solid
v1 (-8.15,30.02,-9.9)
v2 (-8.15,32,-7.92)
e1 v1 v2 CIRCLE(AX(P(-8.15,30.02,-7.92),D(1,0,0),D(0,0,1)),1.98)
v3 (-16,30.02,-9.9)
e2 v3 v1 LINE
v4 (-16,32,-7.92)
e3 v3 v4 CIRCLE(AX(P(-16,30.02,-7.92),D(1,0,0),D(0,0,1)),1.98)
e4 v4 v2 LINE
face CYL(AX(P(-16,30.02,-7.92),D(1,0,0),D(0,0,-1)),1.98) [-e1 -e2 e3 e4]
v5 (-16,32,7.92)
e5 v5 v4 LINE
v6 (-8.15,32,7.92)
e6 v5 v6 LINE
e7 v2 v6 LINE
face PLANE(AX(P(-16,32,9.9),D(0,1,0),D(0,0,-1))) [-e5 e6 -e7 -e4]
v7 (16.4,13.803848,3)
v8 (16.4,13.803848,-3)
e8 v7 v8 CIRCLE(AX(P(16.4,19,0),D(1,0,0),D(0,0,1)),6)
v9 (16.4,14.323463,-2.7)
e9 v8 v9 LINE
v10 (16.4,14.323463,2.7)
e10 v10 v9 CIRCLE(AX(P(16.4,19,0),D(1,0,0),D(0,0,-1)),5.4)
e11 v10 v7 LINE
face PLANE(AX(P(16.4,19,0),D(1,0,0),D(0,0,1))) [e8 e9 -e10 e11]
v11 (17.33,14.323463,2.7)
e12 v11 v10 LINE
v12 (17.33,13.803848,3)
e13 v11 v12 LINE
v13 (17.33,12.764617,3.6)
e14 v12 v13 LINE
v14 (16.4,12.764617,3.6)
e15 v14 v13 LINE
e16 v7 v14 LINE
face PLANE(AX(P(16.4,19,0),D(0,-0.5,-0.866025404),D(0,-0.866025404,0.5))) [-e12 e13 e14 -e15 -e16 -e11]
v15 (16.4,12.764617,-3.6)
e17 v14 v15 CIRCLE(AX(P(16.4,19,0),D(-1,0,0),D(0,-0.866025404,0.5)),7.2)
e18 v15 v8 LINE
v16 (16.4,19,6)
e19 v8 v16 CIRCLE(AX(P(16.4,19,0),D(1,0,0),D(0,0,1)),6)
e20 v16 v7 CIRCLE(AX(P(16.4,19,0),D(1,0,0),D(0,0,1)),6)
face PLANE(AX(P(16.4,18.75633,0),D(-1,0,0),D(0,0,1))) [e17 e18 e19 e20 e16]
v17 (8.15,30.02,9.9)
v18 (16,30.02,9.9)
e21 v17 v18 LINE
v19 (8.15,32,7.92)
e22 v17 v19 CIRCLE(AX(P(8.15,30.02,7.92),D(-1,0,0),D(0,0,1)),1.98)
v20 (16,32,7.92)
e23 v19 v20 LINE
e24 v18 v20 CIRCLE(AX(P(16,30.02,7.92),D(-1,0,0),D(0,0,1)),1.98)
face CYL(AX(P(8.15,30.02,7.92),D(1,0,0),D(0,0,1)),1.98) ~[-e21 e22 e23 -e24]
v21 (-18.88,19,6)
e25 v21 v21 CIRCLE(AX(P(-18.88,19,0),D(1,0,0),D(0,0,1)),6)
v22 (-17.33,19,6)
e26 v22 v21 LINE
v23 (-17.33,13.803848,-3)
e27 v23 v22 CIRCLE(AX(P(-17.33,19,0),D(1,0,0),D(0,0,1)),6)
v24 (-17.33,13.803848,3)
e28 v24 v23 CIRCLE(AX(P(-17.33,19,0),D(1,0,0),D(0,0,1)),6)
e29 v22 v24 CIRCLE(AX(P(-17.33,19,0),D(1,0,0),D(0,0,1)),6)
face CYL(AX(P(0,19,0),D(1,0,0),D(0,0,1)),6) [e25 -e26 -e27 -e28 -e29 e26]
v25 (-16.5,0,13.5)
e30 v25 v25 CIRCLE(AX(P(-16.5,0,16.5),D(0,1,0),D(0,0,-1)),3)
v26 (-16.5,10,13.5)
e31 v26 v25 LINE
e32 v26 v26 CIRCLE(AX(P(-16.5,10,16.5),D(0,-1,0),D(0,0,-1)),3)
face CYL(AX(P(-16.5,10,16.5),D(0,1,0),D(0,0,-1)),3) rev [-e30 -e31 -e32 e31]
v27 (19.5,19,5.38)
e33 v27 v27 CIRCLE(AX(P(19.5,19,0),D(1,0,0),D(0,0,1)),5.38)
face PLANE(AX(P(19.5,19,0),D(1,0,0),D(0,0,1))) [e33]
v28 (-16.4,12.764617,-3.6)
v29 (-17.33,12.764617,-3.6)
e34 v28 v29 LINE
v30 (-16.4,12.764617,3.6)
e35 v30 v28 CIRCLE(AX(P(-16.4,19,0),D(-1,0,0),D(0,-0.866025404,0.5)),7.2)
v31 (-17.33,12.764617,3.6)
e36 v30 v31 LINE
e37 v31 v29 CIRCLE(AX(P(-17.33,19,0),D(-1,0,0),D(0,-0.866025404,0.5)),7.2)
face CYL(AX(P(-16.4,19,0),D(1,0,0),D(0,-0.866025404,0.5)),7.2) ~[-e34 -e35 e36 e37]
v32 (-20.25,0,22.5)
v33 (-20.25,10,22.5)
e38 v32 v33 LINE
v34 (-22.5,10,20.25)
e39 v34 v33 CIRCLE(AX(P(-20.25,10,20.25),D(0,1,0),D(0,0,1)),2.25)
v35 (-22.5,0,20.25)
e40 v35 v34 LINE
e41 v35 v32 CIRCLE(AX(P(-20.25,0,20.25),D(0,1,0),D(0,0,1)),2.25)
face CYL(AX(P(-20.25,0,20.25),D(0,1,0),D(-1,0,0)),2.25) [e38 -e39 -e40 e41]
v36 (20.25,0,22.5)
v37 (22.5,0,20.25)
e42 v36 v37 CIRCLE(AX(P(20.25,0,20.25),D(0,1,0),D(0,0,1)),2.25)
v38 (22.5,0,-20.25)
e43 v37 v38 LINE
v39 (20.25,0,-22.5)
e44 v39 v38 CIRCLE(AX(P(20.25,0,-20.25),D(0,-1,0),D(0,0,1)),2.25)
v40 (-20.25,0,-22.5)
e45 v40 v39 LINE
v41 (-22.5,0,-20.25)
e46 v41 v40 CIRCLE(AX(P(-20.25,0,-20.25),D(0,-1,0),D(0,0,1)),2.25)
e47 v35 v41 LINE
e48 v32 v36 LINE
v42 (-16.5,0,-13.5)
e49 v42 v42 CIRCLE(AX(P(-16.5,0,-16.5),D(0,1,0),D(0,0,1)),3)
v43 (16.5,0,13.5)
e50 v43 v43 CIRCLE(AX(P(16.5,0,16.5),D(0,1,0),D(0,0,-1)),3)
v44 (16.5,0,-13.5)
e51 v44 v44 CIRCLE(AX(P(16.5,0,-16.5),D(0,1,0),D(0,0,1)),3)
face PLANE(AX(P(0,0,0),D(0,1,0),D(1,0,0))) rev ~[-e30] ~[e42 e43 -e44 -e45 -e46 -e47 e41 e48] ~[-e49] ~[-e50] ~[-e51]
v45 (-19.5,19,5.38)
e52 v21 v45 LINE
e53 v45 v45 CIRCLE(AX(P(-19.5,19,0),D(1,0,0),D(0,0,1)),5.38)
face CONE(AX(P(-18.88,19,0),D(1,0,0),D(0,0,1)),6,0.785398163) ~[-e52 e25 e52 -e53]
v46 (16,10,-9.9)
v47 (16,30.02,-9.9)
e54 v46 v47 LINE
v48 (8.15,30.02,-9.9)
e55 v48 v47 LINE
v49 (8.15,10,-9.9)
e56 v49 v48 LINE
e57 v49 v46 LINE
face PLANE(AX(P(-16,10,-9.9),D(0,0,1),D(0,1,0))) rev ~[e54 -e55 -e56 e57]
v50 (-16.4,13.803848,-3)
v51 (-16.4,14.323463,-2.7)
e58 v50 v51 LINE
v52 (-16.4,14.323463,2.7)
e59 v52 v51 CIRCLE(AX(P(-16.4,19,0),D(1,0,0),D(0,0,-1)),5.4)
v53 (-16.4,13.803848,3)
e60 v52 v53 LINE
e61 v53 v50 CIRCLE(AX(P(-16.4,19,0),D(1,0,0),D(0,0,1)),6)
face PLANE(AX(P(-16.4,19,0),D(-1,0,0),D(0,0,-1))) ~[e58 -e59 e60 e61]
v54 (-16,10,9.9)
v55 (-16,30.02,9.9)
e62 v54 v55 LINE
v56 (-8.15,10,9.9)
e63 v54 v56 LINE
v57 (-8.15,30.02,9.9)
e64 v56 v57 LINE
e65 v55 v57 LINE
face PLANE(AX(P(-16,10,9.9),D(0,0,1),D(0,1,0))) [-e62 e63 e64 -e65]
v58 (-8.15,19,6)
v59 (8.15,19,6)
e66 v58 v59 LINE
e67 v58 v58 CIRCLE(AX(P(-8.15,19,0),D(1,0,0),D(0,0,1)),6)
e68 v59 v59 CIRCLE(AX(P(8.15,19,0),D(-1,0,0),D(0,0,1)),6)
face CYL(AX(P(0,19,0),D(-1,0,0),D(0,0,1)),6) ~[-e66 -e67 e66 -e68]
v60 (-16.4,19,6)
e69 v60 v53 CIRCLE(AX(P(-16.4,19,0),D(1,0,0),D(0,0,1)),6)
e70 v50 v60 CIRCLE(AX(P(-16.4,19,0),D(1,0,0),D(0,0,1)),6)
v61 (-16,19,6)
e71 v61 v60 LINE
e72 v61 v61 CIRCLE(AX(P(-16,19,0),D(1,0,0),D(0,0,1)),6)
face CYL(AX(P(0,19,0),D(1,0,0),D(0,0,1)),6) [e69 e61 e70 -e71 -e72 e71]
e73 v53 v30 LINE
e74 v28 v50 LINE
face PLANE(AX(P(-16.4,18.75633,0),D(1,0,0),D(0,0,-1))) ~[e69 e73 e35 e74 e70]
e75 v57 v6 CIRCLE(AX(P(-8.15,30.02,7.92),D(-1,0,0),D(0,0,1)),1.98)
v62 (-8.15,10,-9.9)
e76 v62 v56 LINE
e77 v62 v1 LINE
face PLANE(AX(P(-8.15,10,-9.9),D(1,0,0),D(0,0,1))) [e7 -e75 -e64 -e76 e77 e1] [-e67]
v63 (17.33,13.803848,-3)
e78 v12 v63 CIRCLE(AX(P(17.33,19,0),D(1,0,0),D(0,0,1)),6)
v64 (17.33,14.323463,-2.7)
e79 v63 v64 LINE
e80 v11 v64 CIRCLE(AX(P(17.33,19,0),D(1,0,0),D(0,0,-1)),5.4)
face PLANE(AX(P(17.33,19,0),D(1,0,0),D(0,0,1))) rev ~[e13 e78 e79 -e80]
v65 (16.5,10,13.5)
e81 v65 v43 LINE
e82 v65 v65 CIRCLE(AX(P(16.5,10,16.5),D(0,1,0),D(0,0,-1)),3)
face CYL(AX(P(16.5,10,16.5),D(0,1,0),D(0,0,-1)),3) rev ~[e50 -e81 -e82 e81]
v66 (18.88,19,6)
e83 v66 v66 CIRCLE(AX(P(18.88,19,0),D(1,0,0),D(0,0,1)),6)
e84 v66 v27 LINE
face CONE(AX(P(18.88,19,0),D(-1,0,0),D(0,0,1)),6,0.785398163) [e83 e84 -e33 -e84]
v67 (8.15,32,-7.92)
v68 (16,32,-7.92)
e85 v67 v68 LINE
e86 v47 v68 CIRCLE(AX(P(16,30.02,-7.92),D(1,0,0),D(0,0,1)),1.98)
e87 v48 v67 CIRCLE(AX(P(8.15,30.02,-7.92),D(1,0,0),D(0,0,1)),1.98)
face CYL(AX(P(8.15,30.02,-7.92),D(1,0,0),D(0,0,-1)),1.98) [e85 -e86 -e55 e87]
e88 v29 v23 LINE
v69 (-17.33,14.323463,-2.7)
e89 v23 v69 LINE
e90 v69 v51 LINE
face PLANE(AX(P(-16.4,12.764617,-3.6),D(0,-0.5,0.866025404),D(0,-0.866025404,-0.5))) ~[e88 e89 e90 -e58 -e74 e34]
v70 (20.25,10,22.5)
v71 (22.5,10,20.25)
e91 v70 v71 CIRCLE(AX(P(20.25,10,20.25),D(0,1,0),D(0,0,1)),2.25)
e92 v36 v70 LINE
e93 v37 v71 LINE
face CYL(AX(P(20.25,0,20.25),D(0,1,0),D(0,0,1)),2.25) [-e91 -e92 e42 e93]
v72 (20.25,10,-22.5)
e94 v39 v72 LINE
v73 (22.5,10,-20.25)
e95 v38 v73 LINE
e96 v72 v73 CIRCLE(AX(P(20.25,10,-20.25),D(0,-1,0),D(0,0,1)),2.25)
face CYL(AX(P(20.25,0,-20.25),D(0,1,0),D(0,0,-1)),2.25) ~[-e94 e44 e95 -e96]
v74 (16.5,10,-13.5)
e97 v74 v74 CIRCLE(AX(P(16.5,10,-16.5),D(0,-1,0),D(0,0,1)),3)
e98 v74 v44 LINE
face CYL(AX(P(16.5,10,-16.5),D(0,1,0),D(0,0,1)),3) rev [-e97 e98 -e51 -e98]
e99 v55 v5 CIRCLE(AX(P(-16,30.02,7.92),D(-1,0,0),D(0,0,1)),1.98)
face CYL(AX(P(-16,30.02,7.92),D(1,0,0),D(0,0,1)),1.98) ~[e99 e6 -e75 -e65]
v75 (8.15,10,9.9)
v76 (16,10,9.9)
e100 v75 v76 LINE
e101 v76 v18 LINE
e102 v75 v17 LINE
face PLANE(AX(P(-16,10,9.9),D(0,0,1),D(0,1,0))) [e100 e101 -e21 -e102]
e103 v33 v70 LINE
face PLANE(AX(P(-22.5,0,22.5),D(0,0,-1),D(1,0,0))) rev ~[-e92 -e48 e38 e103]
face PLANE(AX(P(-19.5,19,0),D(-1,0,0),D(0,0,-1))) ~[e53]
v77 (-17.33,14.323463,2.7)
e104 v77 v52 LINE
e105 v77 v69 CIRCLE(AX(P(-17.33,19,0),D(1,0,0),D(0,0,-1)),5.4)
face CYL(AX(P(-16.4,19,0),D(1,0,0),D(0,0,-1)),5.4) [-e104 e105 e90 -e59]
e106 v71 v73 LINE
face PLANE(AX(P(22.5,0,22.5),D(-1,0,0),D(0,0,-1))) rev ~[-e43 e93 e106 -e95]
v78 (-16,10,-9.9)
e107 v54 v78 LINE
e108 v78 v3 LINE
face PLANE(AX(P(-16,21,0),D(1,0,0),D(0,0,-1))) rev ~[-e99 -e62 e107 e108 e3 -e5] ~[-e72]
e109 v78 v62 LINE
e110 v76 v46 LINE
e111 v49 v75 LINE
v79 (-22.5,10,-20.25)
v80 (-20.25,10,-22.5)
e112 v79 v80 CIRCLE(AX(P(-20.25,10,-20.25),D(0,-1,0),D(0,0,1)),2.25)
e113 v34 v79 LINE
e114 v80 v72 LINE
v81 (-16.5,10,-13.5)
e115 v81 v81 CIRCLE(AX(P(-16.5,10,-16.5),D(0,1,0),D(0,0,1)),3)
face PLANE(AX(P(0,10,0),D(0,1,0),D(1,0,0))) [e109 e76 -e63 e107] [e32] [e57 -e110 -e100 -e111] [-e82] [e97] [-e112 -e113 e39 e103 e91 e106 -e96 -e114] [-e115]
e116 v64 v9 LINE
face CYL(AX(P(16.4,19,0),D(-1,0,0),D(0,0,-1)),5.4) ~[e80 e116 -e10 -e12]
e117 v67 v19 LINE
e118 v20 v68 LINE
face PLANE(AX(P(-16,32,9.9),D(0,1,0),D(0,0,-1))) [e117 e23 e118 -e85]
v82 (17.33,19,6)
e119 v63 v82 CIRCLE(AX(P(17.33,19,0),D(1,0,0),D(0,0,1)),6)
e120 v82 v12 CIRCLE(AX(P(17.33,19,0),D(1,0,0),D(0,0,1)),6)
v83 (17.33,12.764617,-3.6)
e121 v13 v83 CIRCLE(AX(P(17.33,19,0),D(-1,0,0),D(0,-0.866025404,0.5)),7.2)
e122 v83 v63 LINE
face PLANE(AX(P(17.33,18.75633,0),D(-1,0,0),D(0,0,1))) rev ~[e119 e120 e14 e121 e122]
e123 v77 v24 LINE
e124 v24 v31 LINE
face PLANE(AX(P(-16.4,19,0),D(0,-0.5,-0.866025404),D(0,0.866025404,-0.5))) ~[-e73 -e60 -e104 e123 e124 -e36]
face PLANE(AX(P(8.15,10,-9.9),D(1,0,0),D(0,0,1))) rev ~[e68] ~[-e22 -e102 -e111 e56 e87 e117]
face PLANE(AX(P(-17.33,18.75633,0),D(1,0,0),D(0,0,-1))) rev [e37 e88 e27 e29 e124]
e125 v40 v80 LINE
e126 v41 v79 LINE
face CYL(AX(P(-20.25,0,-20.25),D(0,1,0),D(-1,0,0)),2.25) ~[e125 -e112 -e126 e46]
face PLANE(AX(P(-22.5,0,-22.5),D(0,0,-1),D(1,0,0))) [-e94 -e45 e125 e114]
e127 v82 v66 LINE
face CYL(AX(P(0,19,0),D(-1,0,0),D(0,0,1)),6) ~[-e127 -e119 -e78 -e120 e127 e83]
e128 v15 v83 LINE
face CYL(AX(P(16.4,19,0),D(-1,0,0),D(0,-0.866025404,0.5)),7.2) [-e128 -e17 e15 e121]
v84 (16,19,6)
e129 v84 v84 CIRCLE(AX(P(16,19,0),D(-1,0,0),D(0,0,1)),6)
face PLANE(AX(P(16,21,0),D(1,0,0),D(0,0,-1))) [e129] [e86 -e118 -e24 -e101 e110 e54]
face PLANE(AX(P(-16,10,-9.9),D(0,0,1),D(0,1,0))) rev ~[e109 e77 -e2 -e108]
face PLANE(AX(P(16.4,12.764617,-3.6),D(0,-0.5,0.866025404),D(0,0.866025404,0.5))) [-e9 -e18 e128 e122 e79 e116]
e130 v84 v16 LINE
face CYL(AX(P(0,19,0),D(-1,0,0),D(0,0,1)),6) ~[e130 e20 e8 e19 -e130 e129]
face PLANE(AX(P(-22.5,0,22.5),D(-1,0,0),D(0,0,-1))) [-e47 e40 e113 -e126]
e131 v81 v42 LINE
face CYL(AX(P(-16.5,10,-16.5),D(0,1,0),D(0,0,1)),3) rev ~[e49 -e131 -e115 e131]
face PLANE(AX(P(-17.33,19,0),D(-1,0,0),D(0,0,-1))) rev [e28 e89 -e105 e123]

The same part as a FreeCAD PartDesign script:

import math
import FreeCAD as App
import Part
import Sketcher
Q = App.Units.Quantity


def edges_at(feature, points):
    """Names of the edges that pass closest to the given points."""
    edges = feature.Shape.Edges
    near = lambda p: min(range(len(edges)), key=lambda i: edges[i].distToShape(Part.Vertex(*p))[0])
    return sorted({f"Edge{near(p) + 1}" for p in points})

doc = App.newDocument("Part")
body = doc.addObject("PartDesign::Body", "Body")

# Sketch on XZ plane
sketch1 = body.newObject("Sketcher::SketchObject", "Sketch")
sketch1.AttachmentSupport = (doc.getObject("XZ_Plane"), [""])
sketch1.MapMode = "FlatFace"
sketch1.addGeometry([
    Part.LineSegment(App.Vector(-22.5, -22.5, 0), App.Vector(-22.5, 22.5, 0)),
    Part.LineSegment(App.Vector(-22.5, 22.5, 0), App.Vector(22.5, 22.5, 0)),
    Part.LineSegment(App.Vector(22.5, 22.5, 0), App.Vector(22.5, -22.5, 0)),
    Part.LineSegment(App.Vector(22.5, -22.5, 0), App.Vector(-22.5, -22.5, 0)),
], False)
sketch1.addConstraint([
    Sketcher.Constraint("Coincident", 0, 2, 1, 1),
    Sketcher.Constraint("Coincident", 1, 2, 2, 1),
    Sketcher.Constraint("Coincident", 2, 2, 3, 1),
    Sketcher.Constraint("Coincident", 3, 2, 0, 1),
    Sketcher.Constraint("Vertical", 0),
    Sketcher.Constraint("Horizontal", 1),
    Sketcher.Constraint("Vertical", 2),
    Sketcher.Constraint("Horizontal", 3),
    Sketcher.Constraint("Symmetric", 0, 2, 2, 2, -1, 1),
    Sketcher.Constraint("Equal", 3, 0),
    Sketcher.Constraint("DistanceX", 1, 1, 1, 2, 45.0),
])
pad1 = body.newObject("PartDesign::Pad", "Pad")
pad1.Profile = sketch1
pad1.Length = 10
pad1.Reversed = True

# Sketch on YZ plane
sketch2 = body.newObject("Sketcher::SketchObject", "Sketch001")
sketch2.AttachmentSupport = (doc.getObject("YZ_Plane"), [""])
sketch2.MapMode = "FlatFace"
sketch2.AttachmentOffset = App.Placement(App.Vector(0, 0, -16), App.Rotation())
sketch2.addGeometry([
    Part.LineSegment(App.Vector(32, 9.9, 0), App.Vector(10, 9.9, 0)),
    Part.LineSegment(App.Vector(10, 9.9, 0), App.Vector(10, -9.9, 0)),
    Part.LineSegment(App.Vector(10, -9.9, 0), App.Vector(32, -9.9, 0)),
    Part.LineSegment(App.Vector(32, -9.9, 0), App.Vector(32, 9.9, 0)),
], False)
sketch2.addConstraint([
    Sketcher.Constraint("Coincident", 0, 2, 1, 1),
    Sketcher.Constraint("Coincident", 1, 2, 2, 1),
    Sketcher.Constraint("Coincident", 2, 2, 3, 1),
    Sketcher.Constraint("Coincident", 3, 2, 0, 1),
    Sketcher.Constraint("Horizontal", 0),
    Sketcher.Constraint("Vertical", 1),
    Sketcher.Constraint("Horizontal", 2),
    Sketcher.Constraint("Vertical", 3),
    Sketcher.Constraint("DistanceX", 0, 2, 0, 1, 22.0),
    Sketcher.Constraint("DistanceY", 1, 2, 1, 1, 19.8),
    Sketcher.Constraint("DistanceX", -1, 1, 0, 2, 10.0),
    Sketcher.Constraint("DistanceY", -1, 1, 0, 2, 9.9),
])
pad2 = body.newObject("PartDesign::Pad", "Pad001")
pad2.Profile = sketch2
pad2.Length = 32

# Sketch on XZ plane
sketch3 = body.newObject("Sketcher::SketchObject", "Sketch002")
sketch3.AttachmentSupport = (doc.getObject("XZ_Plane"), [""])
sketch3.MapMode = "FlatFace"
sketch3.AttachmentOffset = App.Placement(App.Vector(0, 0, -10), App.Rotation())
sketch3.addGeometry([
    Part.LineSegment(App.Vector(8.15, 9.9, 0), App.Vector(8.15, -9.9, 0)),
    Part.LineSegment(App.Vector(8.15, -9.9, 0), App.Vector(-8.15, -9.9, 0)),
    Part.LineSegment(App.Vector(-8.15, -9.9, 0), App.Vector(-8.15, 9.9, 0)),
    Part.LineSegment(App.Vector(-8.15, 9.9, 0), App.Vector(8.15, 9.9, 0)),
], False)
sketch3.addConstraint([
    Sketcher.Constraint("Coincident", 0, 2, 1, 1),
    Sketcher.Constraint("Coincident", 1, 2, 2, 1),
    Sketcher.Constraint("Coincident", 2, 2, 3, 1),
    Sketcher.Constraint("Coincident", 3, 2, 0, 1),
    Sketcher.Constraint("Vertical", 0),
    Sketcher.Constraint("Horizontal", 1),
    Sketcher.Constraint("Vertical", 2),
    Sketcher.Constraint("Horizontal", 3),
    Sketcher.Constraint("Symmetric", 0, 2, 2, 2, -1, 1),
    Sketcher.Constraint("DistanceX", 1, 2, 1, 1, 16.3),
    Sketcher.Constraint("DistanceY", 0, 2, 0, 1, 19.8),
])
pocket1 = body.newObject("PartDesign::Pocket", "Pocket")
pocket1.Profile = sketch3
pocket1.Length = 22

# Sketch on YZ plane
sketch4 = body.newObject("Sketcher::SketchObject", "Sketch003")
sketch4.AttachmentSupport = (doc.getObject("YZ_Plane"), [""])
sketch4.MapMode = "FlatFace"
sketch4.addGeometry(Part.Circle(App.Vector(19, 0, 0), App.Vector(0, 0, 1), 6), False)
sketch4.addConstraint([
    Sketcher.Constraint("PointOnObject", 0, 3, -1),
    Sketcher.Constraint("Diameter", 0, 12.0),
    Sketcher.Constraint("DistanceX", -1, 1, 0, 3, 19.0),
])
pad3 = body.newObject("PartDesign::Pad", "Pad002")
pad3.Profile = sketch4
pad3.Length = 19.5
doc.recompute()

mirrored = body.newObject("PartDesign::Mirrored", "Mirrored")
mirrored.Originals = [pad3]
mirrored.MirrorPlane = (doc.getObject("YZ_Plane"), [""])
body.Tip = mirrored

# Sketch on YZ plane
sketch5 = body.newObject("Sketcher::SketchObject", "Sketch004")
sketch5.AttachmentSupport = (doc.getObject("YZ_Plane"), [""])
sketch5.MapMode = "FlatFace"
sketch5.AttachmentOffset = App.Placement(App.Vector(0, 0, 16.4), App.Rotation())
sketch5.addGeometry([
    Part.Circle(App.Vector(19, 0, 0), App.Vector(0, 0, 1), 6),
    Part.Circle(App.Vector(19, 0, 0), App.Vector(0, 0, 1), 5.4),
], False)
sketch5.addConstraint([
    Sketcher.Constraint("Coincident", 1, 3, 0, 3),
    Sketcher.Constraint("PointOnObject", 0, 3, -1),
    Sketcher.Constraint("Diameter", 0, 12.0),
    Sketcher.Constraint("Diameter", 1, 10.8),
    Sketcher.Constraint("DistanceX", -1, 1, 0, 3, 19.0),
])
pocket2 = body.newObject("PartDesign::Pocket", "Pocket001")
pocket2.Profile = sketch5
pocket2.Length = 0.93
pocket2.Reversed = True
doc.recompute()

mirrored2 = body.newObject("PartDesign::Mirrored", "Mirrored001")
mirrored2.Originals = [pocket2]
mirrored2.MirrorPlane = (doc.getObject("YZ_Plane"), [""])
body.Tip = mirrored2

# Sketch on XZ plane
sketch6 = body.newObject("Sketcher::SketchObject", "Sketch005")
sketch6.AttachmentSupport = (doc.getObject("XZ_Plane"), [""])
sketch6.MapMode = "FlatFace"
sketch6.AttachmentOffset = App.Placement(App.Vector(0, 0, -10), App.Rotation())
sketch6.addGeometry(Part.Circle(App.Vector(-16.5, -16.5, 0), App.Vector(0, 0, 1), 3), False)
sketch6.addConstraint([
    Sketcher.Constraint("Diameter", 0, 6.0),
    Sketcher.Constraint("DistanceX", 0, 3, -1, 1, 16.5),
    Sketcher.Constraint("DistanceY", 0, 3, -1, 1, 16.5),
])
pocket3 = body.newObject("PartDesign::Pocket", "Pocket002")
pocket3.Profile = sketch6
pocket3.Type = "ThroughAll"
pocket3.Reversed = True
doc.recompute()

mirrored3 = body.newObject("PartDesign::Mirrored", "Mirrored002")
mirrored3.Originals = [pocket3]
mirrored3.MirrorPlane = (doc.getObject("YZ_Plane"), [""])
body.Tip = mirrored3
doc.recompute()

mirrored4 = body.newObject("PartDesign::Mirrored", "Mirrored003")
mirrored4.Originals = [pocket3]
mirrored4.MirrorPlane = (doc.getObject("XY_Plane"), [""])
body.Tip = mirrored4

# Sketch on XZ plane
sketch7 = body.newObject("Sketcher::SketchObject", "Sketch006")
sketch7.AttachmentSupport = (doc.getObject("XZ_Plane"), [""])
sketch7.MapMode = "FlatFace"
sketch7.AttachmentOffset = App.Placement(App.Vector(0, 0, -10), App.Rotation())
sketch7.addGeometry(Part.Circle(App.Vector(16.5, 16.5, 0), App.Vector(0, 0, 1), 3), False)
sketch7.addConstraint([
    Sketcher.Constraint("Diameter", 0, 6.0),
    Sketcher.Constraint("DistanceX", -1, 1, 0, 3, 16.5),
    Sketcher.Constraint("DistanceY", -1, 1, 0, 3, 16.5),
])
pocket4 = body.newObject("PartDesign::Pocket", "Pocket003")
pocket4.Profile = sketch7
pocket4.Type = "ThroughAll"
pocket4.Reversed = True

# Sketch on YZ plane
sketch8 = body.newObject("Sketcher::SketchObject", "Sketch007")
sketch8.AttachmentSupport = (doc.getObject("YZ_Plane"), [""])
sketch8.MapMode = "FlatFace"
sketch8.AttachmentOffset = App.Placement(App.Vector(0, 0, 16.4), App.Rotation())
sketch8.addGeometry([
    Part.LineSegment(App.Vector(12.764617, 3.6, 0), App.Vector(19, 0, 0)),
    Part.LineSegment(App.Vector(19, 0, 0), App.Vector(12.764617, -3.6, 0)),
    Part.ArcOfCircle(Part.Circle(App.Vector(19, 0, 0), App.Vector(0, 0, 1), 7.2), math.radians(-150), math.radians(150)),
], False)
sketch8.addConstraint([
    Sketcher.Constraint("Coincident", 0, 2, 1, 1),
    Sketcher.Constraint("Coincident", 1, 2, 2, 1),
    Sketcher.Constraint("Coincident", 2, 2, 0, 1),
    Sketcher.Constraint("Coincident", 0, 2, 2, 3),
    Sketcher.Constraint("Symmetric", 1, 2, 2, 2, -1),
    Sketcher.Constraint("Radius", 2, 7.2),
    Sketcher.Constraint("Angle", 0, Q("-30 deg")),
    Sketcher.Constraint("DistanceX", -1, 1, 2, 3, 19.0),
])
pad4 = body.newObject("PartDesign::Pad", "Pad003")
pad4.Profile = sketch8
pad4.Length = 0.93
doc.recompute()

mirrored5 = body.newObject("PartDesign::Mirrored", "Mirrored004")
mirrored5.Originals = [pad4]
mirrored5.MirrorPlane = (doc.getObject("YZ_Plane"), [""])
body.Tip = mirrored5
doc.recompute()

fillet = body.newObject("PartDesign::Fillet", "Fillet")
fillet.Base = (mirrored5, edges_at(mirrored5, [
    (-22.5, 5, 22.5),
    (-22.5, 5, -22.5),
    (22.5, 5, -22.5),
    (22.5, 5, 22.5),
]))
fillet.Radius = 2.25
doc.recompute()

fillet2 = body.newObject("PartDesign::Fillet", "Fillet001")
fillet2.Base = (fillet, edges_at(fillet, [
    (12.075, 32, -9.9),
    (12.075, 32, 9.9),
    (-12.075, 32, 9.9),
    (-12.075, 32, -9.9),
]))
fillet2.Radius = 1.98
doc.recompute()

chamfer = body.newObject("PartDesign::Chamfer", "Chamfer")
chamfer.Base = (fillet2, edges_at(fillet2, [(19.5, 19, -6), (-19.5, 19, -6)]))
chamfer.Size = 0.62

doc.recompute()
